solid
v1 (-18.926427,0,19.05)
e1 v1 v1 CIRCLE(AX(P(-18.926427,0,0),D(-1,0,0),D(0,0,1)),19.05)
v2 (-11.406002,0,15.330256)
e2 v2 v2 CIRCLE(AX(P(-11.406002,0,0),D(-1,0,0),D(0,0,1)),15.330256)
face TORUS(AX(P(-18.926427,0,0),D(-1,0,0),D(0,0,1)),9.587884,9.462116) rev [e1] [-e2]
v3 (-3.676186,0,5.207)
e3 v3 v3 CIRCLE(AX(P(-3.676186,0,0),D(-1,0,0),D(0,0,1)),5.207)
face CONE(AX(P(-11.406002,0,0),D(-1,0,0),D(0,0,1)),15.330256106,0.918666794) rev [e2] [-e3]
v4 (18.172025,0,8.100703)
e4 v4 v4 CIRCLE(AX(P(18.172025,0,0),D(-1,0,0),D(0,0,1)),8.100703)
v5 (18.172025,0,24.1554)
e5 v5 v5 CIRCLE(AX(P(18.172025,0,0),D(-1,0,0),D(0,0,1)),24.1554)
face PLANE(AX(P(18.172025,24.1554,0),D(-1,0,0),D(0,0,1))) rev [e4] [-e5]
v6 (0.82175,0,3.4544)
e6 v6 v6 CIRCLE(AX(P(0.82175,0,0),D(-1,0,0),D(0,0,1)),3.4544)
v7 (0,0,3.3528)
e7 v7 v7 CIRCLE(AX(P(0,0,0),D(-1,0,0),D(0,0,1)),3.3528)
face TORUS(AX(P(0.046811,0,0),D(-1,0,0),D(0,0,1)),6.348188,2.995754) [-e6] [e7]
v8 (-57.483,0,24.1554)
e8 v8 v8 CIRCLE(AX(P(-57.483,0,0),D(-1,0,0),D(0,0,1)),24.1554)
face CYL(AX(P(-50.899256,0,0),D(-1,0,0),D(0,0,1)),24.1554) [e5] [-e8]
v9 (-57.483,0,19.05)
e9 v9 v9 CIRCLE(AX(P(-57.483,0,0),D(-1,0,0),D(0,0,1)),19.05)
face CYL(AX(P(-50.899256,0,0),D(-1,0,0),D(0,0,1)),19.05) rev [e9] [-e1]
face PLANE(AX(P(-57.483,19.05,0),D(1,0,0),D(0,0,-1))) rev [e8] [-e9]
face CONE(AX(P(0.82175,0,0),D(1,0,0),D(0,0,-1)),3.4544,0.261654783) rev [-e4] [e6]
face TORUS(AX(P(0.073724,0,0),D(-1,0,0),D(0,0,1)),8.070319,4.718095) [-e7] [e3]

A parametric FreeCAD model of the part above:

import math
import FreeCAD as App
import Part
import Sketcher

V = App.Vector
Q = App.Units.Quantity

doc = App.newDocument("Part")
params = doc.addObject("Spreadsheet::Sheet", "Params")
for row, (alias, value) in enumerate([
    ("sketch1_height", "0.201 in"),
    ("revolution_angle", "360 deg"),
], start=1):
    params.set(f"A{row}", alias)
    params.set(f"B{row}", "=" + value)
    params.setAlias(f"B{row}", alias)

body = doc.addObject("PartDesign::Body", "Body")

sketch1 = body.newObject("Sketcher::SketchObject", "Sketch")
sketch1.AttachmentSupport = (doc.getObject("XY_Plane"), [""])
sketch1.MapMode = "FlatFace"
sketch1.addGeometry([
    Part.LineSegment(V(-57.5, 19.1, 0), V(-18.9, 19.1, 0)),
    Part.ArcOfCircle(Part.Circle(V(-18.9, 9.6, 0), V(0, 0, 1), 9.5), math.radians(37), math.radians(90)),
    Part.LineSegment(V(-11.4, 15.3, 0), V(-3.7, 5.2, 0)),
    Part.ArcOfCircle(Part.Circle(V(0.1, 8.1, 0), V(0, 0, 1), 4.7), math.radians(-143), math.radians(-91)),
    Part.ArcOfCircle(Part.Circle(V(0, 6.3, 0), V(0, 0, 1), 3), math.radians(-90.9), math.radians(-75.01)),
    Part.LineSegment(V(0.8, 3.5, 0), V(18.2, 8.1, 0)),
    Part.LineSegment(V(18.2, 8.1, 0), V(18.2, 24.2, 0)),
    Part.LineSegment(V(18.2, 24.2, 0), V(-57.5, 24.2, 0)),
    Part.LineSegment(V(-57.5, 24.2, 0), V(-57.5, 19.1, 0)),
], False)
sketch1.addConstraint([
    Sketcher.Constraint("Tangent", 0, 2, 1, 2),
    Sketcher.Constraint("Tangent", 1, 1, 2, 1),
    Sketcher.Constraint("Tangent", 2, 2, 3, 1),
    Sketcher.Constraint("Tangent", 3, 2, 4, 1),
    Sketcher.Constraint("Tangent", 4, 2, 5, 1),
    Sketcher.Constraint("Coincident", 5, 2, 6, 1),
    Sketcher.Constraint("Coincident", 6, 2, 7, 1),
    Sketcher.Constraint("Coincident", 7, 2, 8, 1),
    Sketcher.Constraint("Coincident", 8, 2, 0, 1),
    Sketcher.Constraint("Horizontal", 0),
    Sketcher.Constraint("Vertical", 6),
    Sketcher.Constraint("Horizontal", 7),
    Sketcher.Constraint("Vertical", 8),
    Sketcher.Constraint("PointOnObject", 3, 2, -2),
    Sketcher.Constraint("DistanceY", 8, 2, 8, 1, Q("0.201 in")),
    Sketcher.Constraint("DistanceY", -1, 1, 0, 2, Q("0.75 in")),
    Sketcher.Constraint("DistanceY", -1, 1, 2, 2, Q("0.205 in")),
    Sketcher.Constraint("DistanceY", -1, 1, 3, 2, Q("0.132 in")),
    Sketcher.Constraint("DistanceY", -1, 1, 4, 2, Q("0.136 in")),
    Sketcher.Constraint("Radius", 1, 9.462116),
    Sketcher.Constraint("Radius", 3, 4.718095),
    Sketcher.Constraint("Radius", 4, 2.995754),
    Sketcher.Constraint("DistanceX", 1, 1, -1, 1, 11.406002),
    Sketcher.Constraint("DistanceX", 7, 2, -1, 1, 57.483),
    Sketcher.Constraint("DistanceX", 3, 3, 5, 2, 18.098302),
])
sketch1.setExpression("Constraints[14]", "Params.sketch1_height")
revolution = body.newObject("PartDesign::Revolution", "Revolution")
revolution.Profile = sketch1
revolution.ReferenceAxis = (sketch1, ["H_Axis"])
revolution.setExpression("Angle", "Params.revolution_angle")

doc.recompute()
